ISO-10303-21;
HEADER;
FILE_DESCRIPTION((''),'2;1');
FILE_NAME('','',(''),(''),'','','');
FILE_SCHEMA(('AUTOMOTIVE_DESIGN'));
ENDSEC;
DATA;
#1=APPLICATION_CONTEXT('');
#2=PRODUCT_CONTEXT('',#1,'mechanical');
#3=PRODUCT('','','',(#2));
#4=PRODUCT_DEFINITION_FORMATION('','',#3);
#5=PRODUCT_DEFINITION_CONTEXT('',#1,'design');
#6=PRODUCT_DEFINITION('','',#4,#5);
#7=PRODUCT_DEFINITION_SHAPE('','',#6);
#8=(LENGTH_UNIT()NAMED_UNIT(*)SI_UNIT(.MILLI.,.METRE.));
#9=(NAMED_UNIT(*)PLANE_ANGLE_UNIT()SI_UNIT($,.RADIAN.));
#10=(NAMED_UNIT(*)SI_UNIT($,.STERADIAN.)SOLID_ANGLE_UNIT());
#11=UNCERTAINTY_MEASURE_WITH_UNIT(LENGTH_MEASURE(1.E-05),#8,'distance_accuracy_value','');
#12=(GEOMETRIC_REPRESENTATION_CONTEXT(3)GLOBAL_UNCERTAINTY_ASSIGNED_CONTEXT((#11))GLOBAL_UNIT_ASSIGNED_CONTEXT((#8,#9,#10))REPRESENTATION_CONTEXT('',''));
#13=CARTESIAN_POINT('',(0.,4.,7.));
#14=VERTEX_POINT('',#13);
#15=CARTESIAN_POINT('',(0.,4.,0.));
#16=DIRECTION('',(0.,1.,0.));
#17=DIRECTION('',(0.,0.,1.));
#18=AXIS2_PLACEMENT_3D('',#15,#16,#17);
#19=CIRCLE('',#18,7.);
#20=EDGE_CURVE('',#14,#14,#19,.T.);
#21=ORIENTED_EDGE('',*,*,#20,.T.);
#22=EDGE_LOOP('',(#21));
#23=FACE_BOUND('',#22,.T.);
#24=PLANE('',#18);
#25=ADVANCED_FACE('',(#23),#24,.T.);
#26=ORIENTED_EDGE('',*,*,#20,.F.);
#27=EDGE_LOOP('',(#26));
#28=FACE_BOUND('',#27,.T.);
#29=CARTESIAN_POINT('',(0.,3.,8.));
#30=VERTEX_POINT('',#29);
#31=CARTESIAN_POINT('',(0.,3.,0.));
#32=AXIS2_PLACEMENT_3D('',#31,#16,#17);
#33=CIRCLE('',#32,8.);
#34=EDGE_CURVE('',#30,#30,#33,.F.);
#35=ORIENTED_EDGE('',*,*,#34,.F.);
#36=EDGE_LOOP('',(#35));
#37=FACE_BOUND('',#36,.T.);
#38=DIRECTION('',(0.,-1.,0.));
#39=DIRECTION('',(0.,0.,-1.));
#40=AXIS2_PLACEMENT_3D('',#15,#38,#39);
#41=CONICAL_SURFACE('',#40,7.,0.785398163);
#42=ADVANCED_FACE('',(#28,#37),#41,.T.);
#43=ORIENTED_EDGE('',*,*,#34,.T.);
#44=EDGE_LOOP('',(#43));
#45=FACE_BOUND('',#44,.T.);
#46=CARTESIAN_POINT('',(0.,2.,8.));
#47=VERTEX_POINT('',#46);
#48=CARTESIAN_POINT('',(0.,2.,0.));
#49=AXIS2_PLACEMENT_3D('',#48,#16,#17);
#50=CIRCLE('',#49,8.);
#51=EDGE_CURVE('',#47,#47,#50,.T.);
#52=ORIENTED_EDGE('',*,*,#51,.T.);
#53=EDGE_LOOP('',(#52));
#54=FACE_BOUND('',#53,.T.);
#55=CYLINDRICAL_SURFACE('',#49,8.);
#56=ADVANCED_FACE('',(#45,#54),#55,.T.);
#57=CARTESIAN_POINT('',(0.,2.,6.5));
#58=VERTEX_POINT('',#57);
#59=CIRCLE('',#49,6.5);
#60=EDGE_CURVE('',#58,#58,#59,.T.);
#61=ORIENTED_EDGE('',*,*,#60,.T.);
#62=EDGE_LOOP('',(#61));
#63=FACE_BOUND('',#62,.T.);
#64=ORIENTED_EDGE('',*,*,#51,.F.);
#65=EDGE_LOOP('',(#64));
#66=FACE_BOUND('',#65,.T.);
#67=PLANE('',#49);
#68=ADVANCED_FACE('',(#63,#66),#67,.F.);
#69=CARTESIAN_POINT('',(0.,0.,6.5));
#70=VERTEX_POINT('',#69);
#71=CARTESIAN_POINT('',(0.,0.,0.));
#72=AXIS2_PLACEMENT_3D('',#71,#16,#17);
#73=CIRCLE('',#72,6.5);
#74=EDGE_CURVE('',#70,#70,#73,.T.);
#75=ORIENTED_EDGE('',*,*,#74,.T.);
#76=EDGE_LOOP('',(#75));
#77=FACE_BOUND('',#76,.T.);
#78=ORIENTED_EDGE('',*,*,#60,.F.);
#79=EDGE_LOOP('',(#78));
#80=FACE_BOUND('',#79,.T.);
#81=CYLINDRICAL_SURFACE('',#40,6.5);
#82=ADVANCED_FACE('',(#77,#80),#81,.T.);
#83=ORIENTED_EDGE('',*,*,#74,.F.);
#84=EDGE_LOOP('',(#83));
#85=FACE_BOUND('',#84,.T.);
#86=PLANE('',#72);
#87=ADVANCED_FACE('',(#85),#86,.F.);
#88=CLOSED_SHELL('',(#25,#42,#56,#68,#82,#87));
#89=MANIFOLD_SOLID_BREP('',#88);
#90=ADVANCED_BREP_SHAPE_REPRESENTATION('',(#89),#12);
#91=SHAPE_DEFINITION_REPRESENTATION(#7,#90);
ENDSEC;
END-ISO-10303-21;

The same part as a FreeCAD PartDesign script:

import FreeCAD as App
import Part
import Sketcher
Q = App.Units.Quantity


def edges_at(feature, points):
    """Names of the edges that pass closest to the given points."""
    edges = feature.Shape.Edges
    near = lambda p: min(range(len(edges)), key=lambda i: edges[i].distToShape(Part.Vertex(*p))[0])
    return sorted({f"Edge{near(p) + 1}" for p in points})

doc = App.newDocument("Part")
body = doc.addObject("PartDesign::Body", "Body")

# Sketch on XZ plane
sketch1 = body.newObject("Sketcher::SketchObject", "Sketch")
sketch1.AttachmentSupport = (doc.getObject("XZ_Plane"), [""])
sketch1.MapMode = "FlatFace"
sketch1.addGeometry(Part.Circle(App.Vector(0, 0, 0), App.Vector(0, 0, 1), 6), False)
sketch1.addConstraint([
    Sketcher.Constraint("Coincident", 0, 3, -1, 1),
    Sketcher.Constraint("Diameter", 0, Q("13 mm")),
])
pad1 = body.newObject("PartDesign::Pad", "Pad")
pad1.Profile = sketch1
pad1.Length = 4
pad1.Reversed = True

# Sketch on XZ plane
sketch2 = body.newObject("Sketcher::SketchObject", "Sketch001")
sketch2.AttachmentSupport = (doc.getObject("XZ_Plane"), [""])
sketch2.MapMode = "FlatFace"
sketch2.AttachmentOffset = App.Placement(App.Vector(0, 0, -4), App.Rotation())
sketch2.addGeometry(Part.Circle(App.Vector(0, 0, 0), App.Vector(0, 0, 1), 8), False)
sketch2.addConstraint([
    Sketcher.Constraint("Coincident", 0, 3, -1, 1),
    Sketcher.Constraint("Diameter", 0, Q("16 mm")),
])
pad2 = body.newObject("PartDesign::Pad", "Pad001")
pad2.Profile = sketch2
pad2.Length = 2
doc.recompute()

chamfer = body.newObject("PartDesign::Chamfer", "Chamfer")
chamfer.Base = (pad2, edges_at(pad2, [(0, 4, -8)]))
chamfer.Size = 1

doc.recompute()
